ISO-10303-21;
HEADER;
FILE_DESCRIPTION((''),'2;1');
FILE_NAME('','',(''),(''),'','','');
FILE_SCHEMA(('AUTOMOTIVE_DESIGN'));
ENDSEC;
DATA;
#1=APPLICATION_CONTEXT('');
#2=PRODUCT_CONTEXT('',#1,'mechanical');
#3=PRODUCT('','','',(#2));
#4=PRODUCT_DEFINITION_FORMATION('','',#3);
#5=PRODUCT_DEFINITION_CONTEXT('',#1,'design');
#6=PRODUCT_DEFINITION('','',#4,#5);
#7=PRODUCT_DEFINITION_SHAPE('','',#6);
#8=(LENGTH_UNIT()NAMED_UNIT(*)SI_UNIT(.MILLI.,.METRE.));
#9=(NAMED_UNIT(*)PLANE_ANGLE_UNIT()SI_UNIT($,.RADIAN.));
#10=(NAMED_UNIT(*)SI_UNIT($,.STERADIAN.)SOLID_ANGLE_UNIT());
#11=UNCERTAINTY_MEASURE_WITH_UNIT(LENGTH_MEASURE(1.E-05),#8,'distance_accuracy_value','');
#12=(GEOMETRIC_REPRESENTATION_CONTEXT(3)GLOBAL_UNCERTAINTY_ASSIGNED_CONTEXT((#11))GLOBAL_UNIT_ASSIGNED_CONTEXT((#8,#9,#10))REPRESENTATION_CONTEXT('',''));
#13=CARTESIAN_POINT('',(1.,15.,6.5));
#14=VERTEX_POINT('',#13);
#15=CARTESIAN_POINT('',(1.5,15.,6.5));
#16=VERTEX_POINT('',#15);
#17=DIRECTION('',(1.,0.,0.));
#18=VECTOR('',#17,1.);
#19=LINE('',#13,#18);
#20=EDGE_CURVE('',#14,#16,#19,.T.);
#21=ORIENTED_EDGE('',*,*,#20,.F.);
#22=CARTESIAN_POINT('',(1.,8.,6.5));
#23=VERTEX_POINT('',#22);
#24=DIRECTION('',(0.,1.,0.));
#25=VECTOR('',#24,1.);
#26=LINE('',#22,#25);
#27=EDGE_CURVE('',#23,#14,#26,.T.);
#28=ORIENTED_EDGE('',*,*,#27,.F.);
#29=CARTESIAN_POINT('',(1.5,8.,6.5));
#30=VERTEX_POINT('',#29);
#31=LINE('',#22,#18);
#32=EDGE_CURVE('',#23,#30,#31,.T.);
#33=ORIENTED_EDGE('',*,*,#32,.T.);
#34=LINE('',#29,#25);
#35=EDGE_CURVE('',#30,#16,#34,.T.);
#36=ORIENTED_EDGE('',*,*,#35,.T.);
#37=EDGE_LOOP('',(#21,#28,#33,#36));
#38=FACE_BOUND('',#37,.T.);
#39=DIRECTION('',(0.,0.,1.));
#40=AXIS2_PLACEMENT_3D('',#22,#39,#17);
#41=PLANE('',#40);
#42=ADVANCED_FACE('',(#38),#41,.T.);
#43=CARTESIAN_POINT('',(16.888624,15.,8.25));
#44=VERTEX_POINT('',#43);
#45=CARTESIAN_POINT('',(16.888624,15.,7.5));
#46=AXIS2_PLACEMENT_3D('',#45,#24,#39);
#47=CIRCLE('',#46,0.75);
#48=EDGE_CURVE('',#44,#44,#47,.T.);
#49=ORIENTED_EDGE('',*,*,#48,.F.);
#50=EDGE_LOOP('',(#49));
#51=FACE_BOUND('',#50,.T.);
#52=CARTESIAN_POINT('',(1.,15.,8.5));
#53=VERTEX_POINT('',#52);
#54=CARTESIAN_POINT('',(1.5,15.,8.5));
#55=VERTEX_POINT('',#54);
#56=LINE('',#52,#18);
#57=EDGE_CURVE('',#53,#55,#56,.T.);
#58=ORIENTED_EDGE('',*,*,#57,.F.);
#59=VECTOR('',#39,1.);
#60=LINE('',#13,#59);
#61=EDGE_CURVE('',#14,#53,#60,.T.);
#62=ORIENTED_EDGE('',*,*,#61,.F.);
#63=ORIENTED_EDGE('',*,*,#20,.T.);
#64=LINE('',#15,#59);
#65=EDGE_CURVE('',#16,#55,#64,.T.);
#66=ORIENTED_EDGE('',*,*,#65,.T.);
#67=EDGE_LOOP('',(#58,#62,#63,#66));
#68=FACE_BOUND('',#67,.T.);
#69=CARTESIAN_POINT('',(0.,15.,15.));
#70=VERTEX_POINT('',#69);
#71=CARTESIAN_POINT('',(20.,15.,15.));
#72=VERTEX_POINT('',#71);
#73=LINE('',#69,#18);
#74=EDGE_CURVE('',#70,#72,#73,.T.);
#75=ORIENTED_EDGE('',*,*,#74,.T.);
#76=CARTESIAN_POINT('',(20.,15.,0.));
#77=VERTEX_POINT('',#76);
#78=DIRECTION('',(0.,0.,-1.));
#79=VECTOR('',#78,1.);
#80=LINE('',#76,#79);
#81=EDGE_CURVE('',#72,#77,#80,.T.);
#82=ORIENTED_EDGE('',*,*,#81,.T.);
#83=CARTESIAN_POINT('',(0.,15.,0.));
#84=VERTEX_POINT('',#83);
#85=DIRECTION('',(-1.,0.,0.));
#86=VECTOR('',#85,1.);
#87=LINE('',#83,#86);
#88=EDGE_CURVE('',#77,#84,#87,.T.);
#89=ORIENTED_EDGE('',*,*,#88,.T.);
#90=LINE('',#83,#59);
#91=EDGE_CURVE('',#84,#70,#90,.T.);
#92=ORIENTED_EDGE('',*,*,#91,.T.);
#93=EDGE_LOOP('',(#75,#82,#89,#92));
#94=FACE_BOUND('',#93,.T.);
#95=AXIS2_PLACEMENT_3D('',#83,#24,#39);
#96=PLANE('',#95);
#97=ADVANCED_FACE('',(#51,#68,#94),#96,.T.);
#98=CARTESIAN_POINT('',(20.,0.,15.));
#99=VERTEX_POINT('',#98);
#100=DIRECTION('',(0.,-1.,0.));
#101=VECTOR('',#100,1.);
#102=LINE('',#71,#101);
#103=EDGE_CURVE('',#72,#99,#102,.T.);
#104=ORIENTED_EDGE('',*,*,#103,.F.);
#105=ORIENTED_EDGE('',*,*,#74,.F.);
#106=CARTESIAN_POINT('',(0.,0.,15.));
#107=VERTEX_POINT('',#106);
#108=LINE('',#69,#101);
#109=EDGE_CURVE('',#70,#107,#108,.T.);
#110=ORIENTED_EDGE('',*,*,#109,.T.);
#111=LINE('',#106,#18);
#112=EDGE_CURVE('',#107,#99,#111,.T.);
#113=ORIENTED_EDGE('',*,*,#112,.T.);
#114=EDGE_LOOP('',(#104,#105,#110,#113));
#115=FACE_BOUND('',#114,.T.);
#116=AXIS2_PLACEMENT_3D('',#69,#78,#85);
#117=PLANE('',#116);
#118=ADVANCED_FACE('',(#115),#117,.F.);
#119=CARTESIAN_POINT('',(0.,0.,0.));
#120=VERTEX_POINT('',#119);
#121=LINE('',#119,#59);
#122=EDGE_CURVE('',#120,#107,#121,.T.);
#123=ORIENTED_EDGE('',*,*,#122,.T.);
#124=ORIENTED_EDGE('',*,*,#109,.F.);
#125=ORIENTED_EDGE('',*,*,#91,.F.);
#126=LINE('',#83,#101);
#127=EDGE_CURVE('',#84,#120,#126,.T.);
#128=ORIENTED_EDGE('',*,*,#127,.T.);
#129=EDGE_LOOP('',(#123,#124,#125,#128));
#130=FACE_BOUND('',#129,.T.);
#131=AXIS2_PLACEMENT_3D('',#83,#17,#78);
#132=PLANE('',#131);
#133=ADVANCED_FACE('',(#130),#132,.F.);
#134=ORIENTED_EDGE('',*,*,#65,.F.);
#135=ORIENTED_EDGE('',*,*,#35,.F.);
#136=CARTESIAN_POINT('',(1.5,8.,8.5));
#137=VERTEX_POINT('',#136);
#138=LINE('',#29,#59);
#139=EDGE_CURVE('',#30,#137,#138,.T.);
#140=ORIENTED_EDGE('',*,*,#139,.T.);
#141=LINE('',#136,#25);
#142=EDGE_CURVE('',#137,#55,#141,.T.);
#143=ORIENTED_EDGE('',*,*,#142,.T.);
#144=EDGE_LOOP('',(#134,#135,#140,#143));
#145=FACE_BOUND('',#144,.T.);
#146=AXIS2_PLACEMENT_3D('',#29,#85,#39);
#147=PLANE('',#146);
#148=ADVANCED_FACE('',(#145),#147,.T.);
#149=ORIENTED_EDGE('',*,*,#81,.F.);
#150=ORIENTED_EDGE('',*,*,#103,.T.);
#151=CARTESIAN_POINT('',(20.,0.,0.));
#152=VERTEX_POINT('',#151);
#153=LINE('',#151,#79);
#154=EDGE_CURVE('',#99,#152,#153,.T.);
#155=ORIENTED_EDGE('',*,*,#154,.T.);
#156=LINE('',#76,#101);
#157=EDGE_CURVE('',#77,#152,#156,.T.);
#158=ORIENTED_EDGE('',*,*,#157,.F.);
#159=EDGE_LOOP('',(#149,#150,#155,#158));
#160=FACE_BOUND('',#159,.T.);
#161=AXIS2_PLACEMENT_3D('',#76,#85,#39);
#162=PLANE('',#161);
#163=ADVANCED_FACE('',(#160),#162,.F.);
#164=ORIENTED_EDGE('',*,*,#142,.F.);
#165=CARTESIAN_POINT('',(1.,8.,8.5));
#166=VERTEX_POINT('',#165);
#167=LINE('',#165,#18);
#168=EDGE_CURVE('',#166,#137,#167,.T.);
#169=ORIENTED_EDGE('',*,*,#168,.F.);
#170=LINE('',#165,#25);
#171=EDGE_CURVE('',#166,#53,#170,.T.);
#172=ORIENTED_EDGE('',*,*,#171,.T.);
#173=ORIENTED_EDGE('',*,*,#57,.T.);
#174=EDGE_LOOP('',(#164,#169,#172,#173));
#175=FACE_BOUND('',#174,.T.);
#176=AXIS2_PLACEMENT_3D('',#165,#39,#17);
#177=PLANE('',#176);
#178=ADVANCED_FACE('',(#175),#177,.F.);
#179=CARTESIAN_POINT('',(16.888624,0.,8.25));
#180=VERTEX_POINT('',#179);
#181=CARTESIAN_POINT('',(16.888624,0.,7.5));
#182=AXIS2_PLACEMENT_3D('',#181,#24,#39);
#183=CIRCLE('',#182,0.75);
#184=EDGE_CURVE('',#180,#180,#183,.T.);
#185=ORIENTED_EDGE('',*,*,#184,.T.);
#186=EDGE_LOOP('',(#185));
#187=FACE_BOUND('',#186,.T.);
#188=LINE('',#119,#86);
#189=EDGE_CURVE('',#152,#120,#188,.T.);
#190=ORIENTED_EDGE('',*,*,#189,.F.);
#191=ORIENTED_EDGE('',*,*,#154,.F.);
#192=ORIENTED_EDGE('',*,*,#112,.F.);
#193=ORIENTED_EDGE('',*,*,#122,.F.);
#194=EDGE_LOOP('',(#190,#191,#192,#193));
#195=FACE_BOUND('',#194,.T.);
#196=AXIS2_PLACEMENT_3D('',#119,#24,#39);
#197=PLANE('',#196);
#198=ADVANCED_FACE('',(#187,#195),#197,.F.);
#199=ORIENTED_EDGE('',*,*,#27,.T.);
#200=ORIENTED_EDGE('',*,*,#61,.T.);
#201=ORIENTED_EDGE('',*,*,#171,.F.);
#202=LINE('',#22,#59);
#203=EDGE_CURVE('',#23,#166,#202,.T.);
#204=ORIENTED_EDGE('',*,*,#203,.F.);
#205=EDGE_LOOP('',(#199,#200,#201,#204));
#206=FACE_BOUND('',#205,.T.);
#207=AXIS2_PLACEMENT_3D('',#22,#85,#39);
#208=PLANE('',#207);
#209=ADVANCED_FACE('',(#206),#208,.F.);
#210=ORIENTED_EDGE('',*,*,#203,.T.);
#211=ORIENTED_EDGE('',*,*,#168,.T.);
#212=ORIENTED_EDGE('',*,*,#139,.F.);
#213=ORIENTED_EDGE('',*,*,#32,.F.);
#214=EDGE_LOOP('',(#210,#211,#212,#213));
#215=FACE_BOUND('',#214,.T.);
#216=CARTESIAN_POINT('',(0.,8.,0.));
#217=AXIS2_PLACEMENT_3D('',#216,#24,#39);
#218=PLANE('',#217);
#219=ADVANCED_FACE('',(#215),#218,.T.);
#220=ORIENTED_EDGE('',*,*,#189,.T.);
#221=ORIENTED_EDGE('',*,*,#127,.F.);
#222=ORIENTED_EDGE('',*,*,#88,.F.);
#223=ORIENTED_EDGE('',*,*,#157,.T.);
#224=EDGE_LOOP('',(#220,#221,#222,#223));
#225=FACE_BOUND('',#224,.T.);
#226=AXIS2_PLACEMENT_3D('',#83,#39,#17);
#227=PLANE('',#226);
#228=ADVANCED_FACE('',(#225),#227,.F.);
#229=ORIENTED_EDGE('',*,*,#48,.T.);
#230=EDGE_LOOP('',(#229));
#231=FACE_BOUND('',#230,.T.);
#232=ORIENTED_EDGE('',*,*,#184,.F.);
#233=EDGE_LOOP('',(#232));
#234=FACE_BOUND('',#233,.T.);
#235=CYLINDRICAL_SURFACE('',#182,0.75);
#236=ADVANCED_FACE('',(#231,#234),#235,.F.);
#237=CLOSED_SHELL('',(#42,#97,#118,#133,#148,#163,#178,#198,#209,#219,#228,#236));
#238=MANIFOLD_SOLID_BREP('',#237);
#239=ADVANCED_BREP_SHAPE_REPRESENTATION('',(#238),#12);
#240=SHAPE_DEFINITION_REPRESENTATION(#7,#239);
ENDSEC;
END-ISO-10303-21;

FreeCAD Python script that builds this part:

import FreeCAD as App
import Part
import Sketcher
from FreeCAD import Vector

doc = App.newDocument("Part")
body = doc.addObject("PartDesign::Body", "Body")

sketch1 = body.newObject("Sketcher::SketchObject", "Sketch")
sketch1.AttachmentSupport = (doc.getObject("XZ_Plane"), [""])
sketch1.MapMode = "FlatFace"
sketch1.addGeometry(Part.LineSegment(Vector(0, 0, 0), Vector(0, 15, 0)), False)
sketch1.addGeometry(Part.LineSegment(Vector(0, 15, 0), Vector(20, 15, 0)), False)
sketch1.addGeometry(Part.LineSegment(Vector(20, 15, 0), Vector(20, 0, 0)), False)
sketch1.addGeometry(Part.LineSegment(Vector(20, 0, 0), Vector(0, 0, 0)), False)
sketch1.addConstraint(Sketcher.Constraint("Coincident", 0, 2, 1, 1))
sketch1.addConstraint(Sketcher.Constraint("Coincident", 1, 2, 2, 1))
sketch1.addConstraint(Sketcher.Constraint("Coincident", 2, 2, 3, 1))
sketch1.addConstraint(Sketcher.Constraint("Coincident", 3, 2, 0, 1))
sketch1.addConstraint(Sketcher.Constraint("Vertical", 0))
sketch1.addConstraint(Sketcher.Constraint("Horizontal", 1))
sketch1.addConstraint(Sketcher.Constraint("Vertical", 2))
sketch1.addConstraint(Sketcher.Constraint("Horizontal", 3))
sketch1.addConstraint(Sketcher.Constraint("Coincident", 3, 2, -1, 1))
sketch1.addConstraint(Sketcher.Constraint("DistanceX", 1, 1, 1, 2, 20.0))
sketch1.addConstraint(Sketcher.Constraint("DistanceY", 0, 1, 0, 2, 15.0))
pad1 = body.newObject("PartDesign::Pad", "Pad")
pad1.Profile = sketch1
pad1.Length = 15
pad1.Reversed = True

sketch2 = body.newObject("Sketcher::SketchObject", "Sketch001")
sketch2.AttachmentSupport = (doc.getObject("XZ_Plane"), [""])
sketch2.MapMode = "FlatFace"
sketch2.AttachmentOffset = App.Placement(Vector(0, 0, -15), App.Rotation())
sketch2.addGeometry(Part.Circle(Vector(16.888624, 7.5, 0), Vector(0, 0, 1), 0.75), False)
sketch2.addConstraint(Sketcher.Constraint("Diameter", 0, 1.5))
sketch2.addConstraint(Sketcher.Constraint("DistanceY", -1, 1, 0, 3, 7.5))
sketch2.addConstraint(Sketcher.Constraint("DistanceX", -1, 1, 0, 3, 16.888624))
pocket1 = body.newObject("PartDesign::Pocket", "Pocket")
pocket1.Profile = sketch2
pocket1.Type = "ThroughAll"
pocket1.Reversed = True

sketch3 = body.newObject("Sketcher::SketchObject", "Sketch002")
sketch3.AttachmentSupport = (doc.getObject("XZ_Plane"), [""])
sketch3.MapMode = "FlatFace"
sketch3.AttachmentOffset = App.Placement(Vector(0, 0, -15), App.Rotation())
sketch3.addGeometry(Part.LineSegment(Vector(1, 6.5, 0), Vector(1, 8.5, 0)), False)
sketch3.addGeometry(Part.LineSegment(Vector(1, 8.5, 0), Vector(1.5, 8.5, 0)), False)
sketch3.addGeometry(Part.LineSegment(Vector(1.5, 8.5, 0), Vector(1.5, 6.5, 0)), False)
sketch3.addGeometry(Part.LineSegment(Vector(1.5, 6.5, 0), Vector(1, 6.5, 0)), False)
sketch3.addConstraint(Sketcher.Constraint("Coincident", 0, 2, 1, 1))
sketch3.addConstraint(Sketcher.Constraint("Coincident", 1, 2, 2, 1))
sketch3.addConstraint(Sketcher.Constraint("Coincident", 2, 2, 3, 1))
sketch3.addConstraint(Sketcher.Constraint("Coincident", 3, 2, 0, 1))
sketch3.addConstraint(Sketcher.Constraint("Vertical", 0))
sketch3.addConstraint(Sketcher.Constraint("Horizontal", 1))
sketch3.addConstraint(Sketcher.Constraint("Vertical", 2))
sketch3.addConstraint(Sketcher.Constraint("Horizontal", 3))
sketch3.addConstraint(Sketcher.Constraint("DistanceY", 0, 1, 0, 2, 2.0))
sketch3.addConstraint(Sketcher.Constraint("DistanceX", 1, 1, 1, 2, 0.5))
sketch3.addConstraint(Sketcher.Constraint("DistanceX", -1, 1, 0, 2, 1.0))
sketch3.addConstraint(Sketcher.Constraint("DistanceY", -1, 1, 0, 2, 8.5))
pocket2 = body.newObject("PartDesign::Pocket", "Pocket001")
pocket2.Profile = sketch3
pocket2.Length = 7
pocket2.Reversed = True

doc.recompute()
